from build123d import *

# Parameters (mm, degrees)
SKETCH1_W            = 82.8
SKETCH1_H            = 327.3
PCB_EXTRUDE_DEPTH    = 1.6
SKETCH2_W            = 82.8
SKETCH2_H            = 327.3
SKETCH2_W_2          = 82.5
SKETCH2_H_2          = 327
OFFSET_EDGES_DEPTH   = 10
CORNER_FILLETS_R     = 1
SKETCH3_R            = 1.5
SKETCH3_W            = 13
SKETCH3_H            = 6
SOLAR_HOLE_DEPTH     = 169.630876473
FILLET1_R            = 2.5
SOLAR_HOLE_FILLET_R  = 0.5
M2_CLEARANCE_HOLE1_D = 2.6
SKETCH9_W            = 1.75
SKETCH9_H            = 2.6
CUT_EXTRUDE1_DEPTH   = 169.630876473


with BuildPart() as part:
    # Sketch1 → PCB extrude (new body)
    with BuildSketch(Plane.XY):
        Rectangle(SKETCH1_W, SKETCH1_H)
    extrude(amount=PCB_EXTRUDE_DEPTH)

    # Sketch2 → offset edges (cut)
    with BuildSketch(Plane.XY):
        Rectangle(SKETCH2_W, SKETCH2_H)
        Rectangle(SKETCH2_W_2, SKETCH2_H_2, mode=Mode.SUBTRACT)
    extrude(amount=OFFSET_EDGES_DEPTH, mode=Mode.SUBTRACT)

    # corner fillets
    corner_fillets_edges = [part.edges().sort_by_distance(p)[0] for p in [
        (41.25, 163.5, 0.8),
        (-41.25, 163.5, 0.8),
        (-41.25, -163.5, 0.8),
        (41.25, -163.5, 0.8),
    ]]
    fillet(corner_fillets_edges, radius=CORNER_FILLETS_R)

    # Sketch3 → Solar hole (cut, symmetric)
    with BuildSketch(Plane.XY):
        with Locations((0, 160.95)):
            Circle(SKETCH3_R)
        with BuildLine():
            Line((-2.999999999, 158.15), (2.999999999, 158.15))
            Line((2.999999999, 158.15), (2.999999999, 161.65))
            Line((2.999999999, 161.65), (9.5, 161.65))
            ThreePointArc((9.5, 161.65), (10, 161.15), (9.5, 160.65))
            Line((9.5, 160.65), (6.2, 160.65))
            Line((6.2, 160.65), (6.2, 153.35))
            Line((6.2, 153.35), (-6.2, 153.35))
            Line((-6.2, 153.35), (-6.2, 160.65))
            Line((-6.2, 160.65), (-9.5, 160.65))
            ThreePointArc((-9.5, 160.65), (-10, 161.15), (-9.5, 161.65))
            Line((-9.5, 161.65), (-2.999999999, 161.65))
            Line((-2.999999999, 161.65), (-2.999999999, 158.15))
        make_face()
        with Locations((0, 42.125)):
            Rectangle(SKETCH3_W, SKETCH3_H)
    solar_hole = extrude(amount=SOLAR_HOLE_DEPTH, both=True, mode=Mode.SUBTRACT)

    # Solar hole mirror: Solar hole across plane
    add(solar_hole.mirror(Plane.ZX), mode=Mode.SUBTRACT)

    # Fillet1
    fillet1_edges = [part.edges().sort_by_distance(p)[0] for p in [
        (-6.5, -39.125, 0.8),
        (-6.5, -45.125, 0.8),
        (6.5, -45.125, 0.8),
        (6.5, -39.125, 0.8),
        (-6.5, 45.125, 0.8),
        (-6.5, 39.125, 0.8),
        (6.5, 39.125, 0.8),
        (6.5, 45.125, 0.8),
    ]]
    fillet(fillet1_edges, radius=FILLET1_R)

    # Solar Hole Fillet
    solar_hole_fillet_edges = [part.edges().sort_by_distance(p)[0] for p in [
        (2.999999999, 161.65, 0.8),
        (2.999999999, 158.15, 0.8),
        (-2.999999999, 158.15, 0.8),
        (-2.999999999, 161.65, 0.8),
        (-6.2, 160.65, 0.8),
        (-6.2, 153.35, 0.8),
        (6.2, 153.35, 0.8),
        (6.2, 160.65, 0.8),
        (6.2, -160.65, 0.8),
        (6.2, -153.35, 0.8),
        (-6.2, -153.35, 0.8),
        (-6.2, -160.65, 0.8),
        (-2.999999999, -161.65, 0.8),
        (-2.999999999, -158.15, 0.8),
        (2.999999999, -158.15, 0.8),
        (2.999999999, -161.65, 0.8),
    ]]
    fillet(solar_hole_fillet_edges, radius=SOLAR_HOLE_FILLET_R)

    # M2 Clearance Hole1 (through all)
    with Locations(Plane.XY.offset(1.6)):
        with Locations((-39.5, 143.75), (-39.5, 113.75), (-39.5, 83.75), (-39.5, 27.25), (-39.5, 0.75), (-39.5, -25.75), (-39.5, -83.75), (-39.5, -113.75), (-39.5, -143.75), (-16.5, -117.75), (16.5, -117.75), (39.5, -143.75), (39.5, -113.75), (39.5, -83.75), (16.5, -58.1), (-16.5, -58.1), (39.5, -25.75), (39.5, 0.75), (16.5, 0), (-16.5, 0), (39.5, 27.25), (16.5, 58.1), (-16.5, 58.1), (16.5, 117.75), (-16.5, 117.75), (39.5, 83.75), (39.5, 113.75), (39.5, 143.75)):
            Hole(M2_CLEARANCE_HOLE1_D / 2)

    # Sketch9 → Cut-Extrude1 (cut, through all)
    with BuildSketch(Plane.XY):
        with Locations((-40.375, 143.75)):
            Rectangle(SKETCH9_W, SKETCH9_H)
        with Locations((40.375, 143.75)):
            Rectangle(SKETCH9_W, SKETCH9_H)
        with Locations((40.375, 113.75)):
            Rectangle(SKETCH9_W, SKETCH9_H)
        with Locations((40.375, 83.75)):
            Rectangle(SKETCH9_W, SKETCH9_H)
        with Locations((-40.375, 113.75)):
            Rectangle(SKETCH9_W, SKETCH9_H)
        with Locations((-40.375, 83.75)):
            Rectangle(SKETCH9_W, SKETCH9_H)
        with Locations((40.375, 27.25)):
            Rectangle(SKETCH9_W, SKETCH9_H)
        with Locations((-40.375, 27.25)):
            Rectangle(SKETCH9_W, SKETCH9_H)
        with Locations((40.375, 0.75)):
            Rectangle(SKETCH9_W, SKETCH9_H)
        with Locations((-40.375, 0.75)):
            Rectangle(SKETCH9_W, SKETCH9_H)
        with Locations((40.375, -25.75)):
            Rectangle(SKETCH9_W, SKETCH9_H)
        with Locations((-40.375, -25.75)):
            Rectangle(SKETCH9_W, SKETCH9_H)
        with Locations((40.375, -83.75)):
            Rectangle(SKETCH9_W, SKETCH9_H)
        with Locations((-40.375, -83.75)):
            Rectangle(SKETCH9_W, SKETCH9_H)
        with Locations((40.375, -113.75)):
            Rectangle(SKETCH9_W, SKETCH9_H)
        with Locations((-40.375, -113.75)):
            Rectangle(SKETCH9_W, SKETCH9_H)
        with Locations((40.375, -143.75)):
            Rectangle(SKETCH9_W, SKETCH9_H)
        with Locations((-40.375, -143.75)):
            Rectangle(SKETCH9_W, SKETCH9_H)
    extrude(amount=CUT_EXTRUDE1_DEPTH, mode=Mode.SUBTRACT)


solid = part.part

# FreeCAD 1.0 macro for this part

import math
import FreeCAD as App
import Part
import Sketcher
from FreeCAD import Vector
Q = App.Units.Quantity


def edges_at(feature, points):
    """Names of the edges that pass closest to the given points."""
    edges = feature.Shape.Edges
    near = lambda p: min(range(len(edges)), key=lambda i: edges[i].distToShape(Part.Vertex(*p))[0])
    return sorted({f"Edge{near(p) + 1}" for p in points})

doc = App.newDocument("Part")
body = doc.addObject("PartDesign::Body", "Body")

# Sketch on XY plane
sketch1 = doc.addObject("Sketcher::SketchObject", "Sketch")
body.addObject(sketch1)
sketch1.AttachmentSupport = (doc.XY_Plane, [""])
sketch1.MapMode = "FlatFace"
sketch1.addGeometry([
    Part.LineSegment(Vector(-41, 164, 0), Vector(-41, -164, 0)),
    Part.LineSegment(Vector(-41, -164, 0), Vector(41, -164, 0)),
    Part.LineSegment(Vector(41, -164, 0), Vector(41, 164, 0)),
    Part.LineSegment(Vector(41, 164, 0), Vector(-41, 164, 0)),
], False)
sketch1.addConstraint([
    Sketcher.Constraint("Coincident", 0, 2, 1, 1),
    Sketcher.Constraint("Coincident", 1, 2, 2, 1),
    Sketcher.Constraint("Coincident", 2, 2, 3, 1),
    Sketcher.Constraint("Coincident", 3, 2, 0, 1),
    Sketcher.Constraint("Vertical", 0),
    Sketcher.Constraint("Horizontal", 1),
    Sketcher.Constraint("Vertical", 2),
    Sketcher.Constraint("Horizontal", 3),
    Sketcher.Constraint("Symmetric", 0, 2, 2, 2, -1, 1),
    Sketcher.Constraint("DistanceX", 1, 1, 1, 2, Q("82.8 mm")),
    Sketcher.Constraint("DistanceY", 0, 2, 0, 1, Q("327.3 mm")),
])
pad1 = doc.addObject("PartDesign::Pad", "Pad")
body.addObject(pad1)
pad1.Profile = sketch1
pad1.Length = 1.6

# Sketch on XY plane
sketch2 = doc.addObject("Sketcher::SketchObject", "Sketch001")
body.addObject(sketch2)
sketch2.AttachmentSupport = (doc.XY_Plane, [""])
sketch2.MapMode = "FlatFace"
sketch2.addGeometry([
    Part.LineSegment(Vector(-41, 164, 0), Vector(-41, -164, 0)),  # 0
    Part.LineSegment(Vector(-41, -164, 0), Vector(41, -164, 0)),  # 1
    Part.LineSegment(Vector(41, -164, 0), Vector(41, 164, 0)),  # 2
    Part.LineSegment(Vector(41, 164, 0), Vector(-41, 164, 0)),  # 3
    Part.LineSegment(Vector(41, -164, 0), Vector(-41, -164, 0)),  # 4
    Part.LineSegment(Vector(-41, -164, 0), Vector(-41, 164, 0)),  # 5
    Part.LineSegment(Vector(-41, 164, 0), Vector(41, 164, 0)),  # 6
    Part.LineSegment(Vector(41, 164, 0), Vector(41, -164, 0)),  # 7
], False)
sketch2.addConstraint([
    Sketcher.Constraint("Coincident", 0, 2, 1, 1),
    Sketcher.Constraint("Coincident", 1, 2, 2, 1),
    Sketcher.Constraint("Coincident", 2, 2, 3, 1),
    Sketcher.Constraint("Coincident", 3, 2, 0, 1),
    Sketcher.Constraint("Coincident", 4, 2, 5, 1),
    Sketcher.Constraint("Coincident", 5, 2, 6, 1),
    Sketcher.Constraint("Coincident", 6, 2, 7, 1),
    Sketcher.Constraint("Coincident", 7, 2, 4, 1),
    Sketcher.Constraint("Vertical", 0),
    Sketcher.Constraint("Horizontal", 1),
    Sketcher.Constraint("Vertical", 2),
    Sketcher.Constraint("Horizontal", 3),
    Sketcher.Constraint("Horizontal", 4),
    Sketcher.Constraint("Vertical", 5),
    Sketcher.Constraint("Horizontal", 6),
    Sketcher.Constraint("Vertical", 7),
    Sketcher.Constraint("Symmetric", 0, 2, 2, 2, -1, 1),
    Sketcher.Constraint("Symmetric", 4, 2, 6, 2, -1, 1),
    Sketcher.Constraint("DistanceY", 5, 1, 5, 2, Q("327 mm")),
    Sketcher.Constraint("DistanceX", 1, 1, 1, 2, Q("82.8 mm")),
    Sketcher.Constraint("DistanceX", 4, 2, 4, 1, Q("82.5 mm")),
    Sketcher.Constraint("DistanceY", 0, 2, 0, 1, Q("327.3 mm")),
])
pocket1 = doc.addObject("PartDesign::Pocket", "Pocket")
body.addObject(pocket1)
pocket1.Profile = sketch2
pocket1.Length = 10
pocket1.Reversed = True
doc.recompute()

fillet = doc.addObject("PartDesign::Fillet", "Fillet")
body.addObject(fillet)
fillet.Base = (pocket1, edges_at(pocket1, [
    (41.25, 163.5, 0.8),
    (-41.25, 163.5, 0.8),
    (-41.25, -163.5, 0.8),
    (41.25, -163.5, 0.8),
]))
fillet.Radius = 1

# Sketch on XY plane
sketch3 = doc.addObject("Sketcher::SketchObject", "Sketch002")
body.addObject(sketch3)
sketch3.AttachmentSupport = (doc.XY_Plane, [""])
sketch3.MapMode = "FlatFace"
sketch3.addGeometry([
    Part.Circle(Vector(0, 160.9, 0), Vector(0, 0, 1), 1.5),  # 0
    Part.LineSegment(Vector(3, 158.2, 0), Vector(-3, 158.2, 0)),  # 1
    Part.LineSegment(Vector(-3, 158.2, 0), Vector(-3, 161.7, 0)),  # 2
    Part.LineSegment(Vector(-3, 161.7, 0), Vector(-9.5, 161.7, 0)),  # 3
    Part.ArcOfCircle(Part.Circle(Vector(-9.5, 161.2, 0), Vector(0, 0, 1), 0.5), math.radians(90), math.radians(270)),  # 4
    Part.LineSegment(Vector(-9.5, 160.7, 0), Vector(-6.2, 160.7, 0)),  # 5
    Part.LineSegment(Vector(-6.2, 160.7, 0), Vector(-6.2, 153.3, 0)),  # 6
    Part.LineSegment(Vector(-6.2, 153.3, 0), Vector(6.2, 153.3, 0)),  # 7
    Part.LineSegment(Vector(6.2, 153.3, 0), Vector(6.2, 160.7, 0)),  # 8
    Part.LineSegment(Vector(6.2, 160.7, 0), Vector(9.5, 160.7, 0)),  # 9
    Part.ArcOfCircle(Part.Circle(Vector(9.5, 161.2, 0), Vector(0, 0, 1), 0.5), math.radians(-90), math.radians(90)),  # 10
    Part.LineSegment(Vector(9.5, 161.7, 0), Vector(3, 161.7, 0)),  # 11
    Part.LineSegment(Vector(3, 161.7, 0), Vector(3, 158.2, 0)),  # 12
    Part.LineSegment(Vector(-6.5, 45.1, 0), Vector(-6.5, 39.1, 0)),  # 13
    Part.LineSegment(Vector(-6.5, 39.1, 0), Vector(6.5, 39.1, 0)),  # 14
    Part.LineSegment(Vector(6.5, 39.1, 0), Vector(6.5, 45.1, 0)),  # 15
    Part.LineSegment(Vector(6.5, 45.1, 0), Vector(-6.5, 45.1, 0)),  # 16
], False)
sketch3.addConstraint([
    Sketcher.Constraint("Coincident", 1, 2, 2, 1),
    Sketcher.Constraint("Coincident", 2, 2, 3, 1),
    Sketcher.Constraint("Tangent", 3, 2, 4, 1),
    Sketcher.Constraint("Tangent", 4, 2, 5, 1),
    Sketcher.Constraint("Coincident", 5, 2, 6, 1),
    Sketcher.Constraint("Coincident", 6, 2, 7, 1),
    Sketcher.Constraint("Coincident", 7, 2, 8, 1),
    Sketcher.Constraint("Coincident", 8, 2, 9, 1),
    Sketcher.Constraint("Tangent", 9, 2, 10, 1),
    Sketcher.Constraint("Tangent", 10, 2, 11, 1),
    Sketcher.Constraint("Coincident", 11, 2, 12, 1),
    Sketcher.Constraint("Coincident", 12, 2, 1, 1),
    Sketcher.Constraint("Coincident", 13, 2, 14, 1),
    Sketcher.Constraint("Coincident", 14, 2, 15, 1),
    Sketcher.Constraint("Coincident", 15, 2, 16, 1),
    Sketcher.Constraint("Coincident", 16, 2, 13, 1),
    Sketcher.Constraint("Horizontal", 1),
    Sketcher.Constraint("Vertical", 2),
    Sketcher.Constraint("Horizontal", 3),
    Sketcher.Constraint("Horizontal", 5),
    Sketcher.Constraint("Vertical", 6),
    Sketcher.Constraint("Horizontal", 7),
    Sketcher.Constraint("Vertical", 8),
    Sketcher.Constraint("Horizontal", 9),
    Sketcher.Constraint("Horizontal", 11),
    Sketcher.Constraint("Vertical", 12),
    Sketcher.Constraint("Vertical", 13),
    Sketcher.Constraint("Horizontal", 14),
    Sketcher.Constraint("Vertical", 15),
    Sketcher.Constraint("Horizontal", 16),
    Sketcher.Constraint("Equal", 4, 10),
    Sketcher.Constraint("Symmetric", 4, 3, 10, 3, -2),
    Sketcher.Constraint("PointOnObject", 0, 3, -2),
    Sketcher.Constraint("Equal", 5, 9),
    Sketcher.Constraint("Equal", 3, 11),
    Sketcher.Constraint("Equal", 1, 13),
    Sketcher.Constraint("Diameter", 0, Q("3 mm")),
    Sketcher.Constraint("Radius", 4, Q("0.5 mm")),
    Sketcher.Constraint("DistanceX", 1, 2, 1, 1, Q("6 mm")),
    Sketcher.Constraint("DistanceX", 14, 1, 14, 2, Q("13 mm")),
    Sketcher.Constraint("DistanceX", 3, 2, 3, 1, Q("6.5 mm")),
    Sketcher.Constraint("DistanceX", 5, 1, 5, 2, Q("3.3 mm")),
    Sketcher.Constraint("DistanceY", 2, 1, 2, 2, Q("3.5 mm")),
    Sketcher.Constraint("DistanceY", 6, 2, 6, 1, Q("7.3 mm")),
    Sketcher.Constraint("DistanceX", 13, 2, -1, 1, Q("6.5 mm")),
    Sketcher.Constraint("DistanceY", 0, 3, 4, 3, Q("0.2 mm")),
    Sketcher.Constraint("DistanceY", -1, 1, 0, 3, Q("160.95 mm")),
    Sketcher.Constraint("DistanceY", -1, 1, 13, 2, Q("39.125 mm")),
])
pocket2 = doc.addObject("PartDesign::Pocket", "Pocket001")
body.addObject(pocket2)
pocket2.Profile = sketch3
pocket2.Length = 339.261753
pocket2.Midplane = True
doc.recompute()

mirrored = doc.addObject("PartDesign::Mirrored", "Mirrored")
body.addObject(mirrored)
mirrored.Originals = [pocket2]
mirrored.MirrorPlane = (doc.XZ_Plane, [""])
body.Tip = mirrored
doc.recompute()

fillet2 = doc.addObject("PartDesign::Fillet", "Fillet001")
body.addObject(fillet2)
fillet2.Base = (mirrored, edges_at(mirrored, [
    (-6.5, -39.125, 0.8),
    (-6.5, -45.125, 0.8),
    (6.5, -45.125, 0.8),
    (6.5, -39.125, 0.8),
    (-6.5, 45.125, 0.8),
    (-6.5, 39.125, 0.8),
    (6.5, 39.125, 0.8),
    (6.5, 45.125, 0.8),
]))
fillet2.Radius = 2.5
doc.recompute()

fillet3 = doc.addObject("PartDesign::Fillet", "Fillet002")
body.addObject(fillet3)
fillet3.Base = (fillet2, edges_at(fillet2, [
    (3, 161.65, 0.8),
    (3, 158.15, 0.8),
    (-3, 158.15, 0.8),
    (-3, 161.65, 0.8),
    (-6.2, 160.65, 0.8),
    (-6.2, 153.35, 0.8),
    (6.2, 153.35, 0.8),
    (6.2, 160.65, 0.8),
    (6.2, -160.65, 0.8),
    (6.2, -153.35, 0.8),
    (-6.2, -153.35, 0.8),
    (-6.2, -160.65, 0.8),
    (-3, -161.65, 0.8),
    (-3, -158.15, 0.8),
    (3, -158.15, 0.8),
    (3, -161.65, 0.8),
]))
fillet3.Radius = 0.5

# Sketch on XY plane
sketch4 = doc.addObject("Sketcher::SketchObject", "Sketch003")
body.addObject(sketch4)
sketch4.AttachmentSupport = (doc.XY_Plane, [""])
sketch4.MapMode = "FlatFace"
sketch4.AttachmentOffset = App.Placement(Vector(0, 0, 1.6), App.Rotation())
sketch4.addGeometry([
    Part.Circle(Vector(-39.5, 143.8, 0), Vector(0, 0, 1), 1.3),  # 0
    Part.Circle(Vector(-39.5, 113.8, 0), Vector(0, 0, 1), 1.3),  # 1
    Part.Circle(Vector(-39.5, 83.8, 0), Vector(0, 0, 1), 1.3),  # 2
    Part.Circle(Vector(-39.5, 27.2, 0), Vector(0, 0, 1), 1.3),  # 3
    Part.Circle(Vector(-39.5, 0.8, 0), Vector(0, 0, 1), 1.3),  # 4
    Part.Circle(Vector(-39.5, -25.8, 0), Vector(0, 0, 1), 1.3),  # 5
    Part.Circle(Vector(-39.5, -83.8, 0), Vector(0, 0, 1), 1.3),  # 6
    Part.Circle(Vector(-39.5, -113.8, 0), Vector(0, 0, 1), 1.3),  # 7
    Part.Circle(Vector(-39.5, -143.8, 0), Vector(0, 0, 1), 1.3),  # 8
    Part.Circle(Vector(-16.5, -117.8, 0), Vector(0, 0, 1), 1.3),  # 9
    Part.Circle(Vector(16.5, -117.8, 0), Vector(0, 0, 1), 1.3),  # 10
    Part.Circle(Vector(39.5, -143.8, 0), Vector(0, 0, 1), 1.3),  # 11
    Part.Circle(Vector(39.5, -113.8, 0), Vector(0, 0, 1), 1.3),  # 12
    Part.Circle(Vector(39.5, -83.8, 0), Vector(0, 0, 1), 1.3),  # 13
    Part.Circle(Vector(16.5, -58.1, 0), Vector(0, 0, 1), 1.3),  # 14
    Part.Circle(Vector(-16.5, -58.1, 0), Vector(0, 0, 1), 1.3),  # 15
    Part.Circle(Vector(39.5, -25.8, 0), Vector(0, 0, 1), 1.3),  # 16
    Part.Circle(Vector(39.5, 0.8, 0), Vector(0, 0, 1), 1.3),  # 17
    Part.Circle(Vector(16.5, 0, 0), Vector(0, 0, 1), 1.3),  # 18
    Part.Circle(Vector(-16.5, 0, 0), Vector(0, 0, 1), 1.3),  # 19
    Part.Circle(Vector(39.5, 27.2, 0), Vector(0, 0, 1), 1.3),  # 20
    Part.Circle(Vector(16.5, 58.1, 0), Vector(0, 0, 1), 1.3),  # 21
    Part.Circle(Vector(-16.5, 58.1, 0), Vector(0, 0, 1), 1.3),  # 22
    Part.Circle(Vector(16.5, 117.8, 0), Vector(0, 0, 1), 1.3),  # 23
    Part.Circle(Vector(-16.5, 117.8, 0), Vector(0, 0, 1), 1.3),  # 24
    Part.Circle(Vector(39.5, 83.8, 0), Vector(0, 0, 1), 1.3),  # 25
    Part.Circle(Vector(39.5, 113.8, 0), Vector(0, 0, 1), 1.3),  # 26
    Part.Circle(Vector(39.5, 143.8, 0), Vector(0, 0, 1), 1.3),  # 27
], False)
sketch4.addConstraint([
    Sketcher.Constraint("Equal", 0, 1),
    Sketcher.Constraint("Equal", 1, 2),
    Sketcher.Constraint("Equal", 2, 3),
    Sketcher.Constraint("Equal", 3, 4),
    Sketcher.Constraint("Equal", 4, 5),
    Sketcher.Constraint("Equal", 5, 6),
    Sketcher.Constraint("Equal", 6, 7),
    Sketcher.Constraint("Equal", 7, 8),
    Sketcher.Constraint("Equal", 8, 9),
    Sketcher.Constraint("Equal", 9, 10),
    Sketcher.Constraint("Equal", 10, 11),
    Sketcher.Constraint("Equal", 11, 12),
    Sketcher.Constraint("Equal", 12, 13),
    Sketcher.Constraint("Equal", 13, 14),
    Sketcher.Constraint("Equal", 14, 15),
    Sketcher.Constraint("Equal", 15, 16),
    Sketcher.Constraint("Equal", 16, 17),
    Sketcher.Constraint("Equal", 17, 18),
    Sketcher.Constraint("Equal", 18, 19),
    Sketcher.Constraint("Equal", 19, 20),
    Sketcher.Constraint("Equal", 20, 21),
    Sketcher.Constraint("Equal", 21, 22),
    Sketcher.Constraint("Equal", 22, 23),
    Sketcher.Constraint("Equal", 23, 24),
    Sketcher.Constraint("Equal", 24, 25),
    Sketcher.Constraint("Equal", 25, 26),
    Sketcher.Constraint("Equal", 26, 27),
    Sketcher.Constraint("Symmetric", 0, 3, 11, 3, -1, 1),
    Sketcher.Constraint("Symmetric", 1, 3, 12, 3, -1, 1),
    Sketcher.Constraint("Symmetric", 2, 3, 13, 3, -1, 1),
    Sketcher.Constraint("Symmetric", 18, 3, 19, 3, -1, 1),
    Sketcher.Constraint("Symmetric", 15, 3, 21, 3, -1, 1),
    Sketcher.Constraint("Symmetric", 14, 3, 22, 3, -1, 1),
    Sketcher.Constraint("Symmetric", 9, 3, 23, 3, -1, 1),
    Sketcher.Constraint("Symmetric", 10, 3, 24, 3, -1, 1),
    Sketcher.Constraint("Symmetric", 6, 3, 25, 3, -1, 1),
    Sketcher.Constraint("Symmetric", 7, 3, 26, 3, -1, 1),
    Sketcher.Constraint("Symmetric", 8, 3, 27, 3, -1, 1),
    Sketcher.Constraint("Symmetric", 9, 3, 10, 3, -2),
    Sketcher.Constraint("Symmetric", 8, 3, 11, 3, -2),
    Sketcher.Constraint("Symmetric", 7, 3, 12, 3, -2),
    Sketcher.Constraint("Symmetric", 6, 3, 13, 3, -2),
    Sketcher.Constraint("Symmetric", 14, 3, 15, 3, -2),
    Sketcher.Constraint("Symmetric", 5, 3, 16, 3, -2),
    Sketcher.Constraint("Symmetric", 4, 3, 17, 3, -2),
    Sketcher.Constraint("Symmetric", 3, 3, 20, 3, -2),
    Sketcher.Constraint("PointOnObject", 18, 3, -1),
    Sketcher.Constraint("Vertical", 0, 3, 1, 3),
    Sketcher.Constraint("Vertical", 1, 3, 2, 3),
    Sketcher.Constraint("Vertical", 2, 3, 3, 3),
    Sketcher.Constraint("Vertical", 3, 3, 4, 3),
    Sketcher.Constraint("Vertical", 4, 3, 5, 3),
    Sketcher.Constraint("Vertical", 10, 3, 14, 3),
    Sketcher.Constraint("Vertical", 14, 3, 18, 3),
    Sketcher.Constraint("Diameter", 0, Q("2.6 mm")),
    Sketcher.Constraint("DistanceY", 1, 3, 0, 3, Q("30 mm")),
    Sketcher.Constraint("DistanceY", 2, 3, 1, 3, Q("30 mm")),
    Sketcher.Constraint("DistanceY", 4, 3, 2, 3, Q("83 mm")),
    Sketcher.Constraint("DistanceY", 5, 3, 3, 3, Q("53 mm")),
    Sketcher.Constraint("DistanceY", 6, 3, 5, 3, Q("58 mm")),
    Sketcher.Constraint("DistanceX", 7, 3, 9, 3, Q("23 mm")),
    Sketcher.Constraint("DistanceY", 9, 3, 7, 3, Q("4 mm")),
    Sketcher.Constraint("DistanceX", 9, 3, 10, 3, Q("33 mm")),
    Sketcher.Constraint("DistanceY", 14, 3, -1, 1, Q("58.1 mm")),
    Sketcher.Constraint("DistanceY", 3, 3, 2, 3, Q("56.5 mm")),
])
doc.recompute()
hole = doc.addObject("PartDesign::Hole", "Hole")
body.addObject(hole)
hole.Profile = sketch4
hole.ThreadType = "None"
hole.Diameter = 2.6
hole.DepthType = "ThroughAll"

# Sketch on XY plane
sketch5 = doc.addObject("Sketcher::SketchObject", "Sketch004")
body.addObject(sketch5)
sketch5.AttachmentSupport = (doc.XY_Plane, [""])
sketch5.MapMode = "FlatFace"
sketch5.addGeometry([
    Part.LineSegment(Vector(-41.2, 145.1, 0), Vector(-41.2, 142.4, 0)),  # 0
    Part.LineSegment(Vector(-41.2, 142.4, 0), Vector(-39.5, 142.4, 0)),  # 1
    Part.LineSegment(Vector(-39.5, 142.4, 0), Vector(-39.5, 145.1, 0)),  # 2
    Part.LineSegment(Vector(-39.5, 145.1, 0), Vector(-41.2, 145.1, 0)),  # 3
    Part.LineSegment(Vector(39.5, 145.1, 0), Vector(39.5, 142.4, 0)),  # 4
    Part.LineSegment(Vector(39.5, 142.4, 0), Vector(41.2, 142.4, 0)),  # 5
    Part.LineSegment(Vector(41.2, 142.4, 0), Vector(41.2, 145.1, 0)),  # 6
    Part.LineSegment(Vector(41.2, 145.1, 0), Vector(39.5, 145.1, 0)),  # 7
    Part.LineSegment(Vector(39.5, 115, 0), Vector(39.5, 112.5, 0)),  # 8
    Part.LineSegment(Vector(39.5, 112.5, 0), Vector(41.2, 112.5, 0)),  # 9
    Part.LineSegment(Vector(41.2, 112.5, 0), Vector(41.2, 115, 0)),  # 10
    Part.LineSegment(Vector(41.2, 115, 0), Vector(39.5, 115, 0)),  # 11
    Part.LineSegment(Vector(39.5, 85, 0), Vector(39.5, 82.5, 0)),  # 12
    Part.LineSegment(Vector(39.5, 82.5, 0), Vector(41.2, 82.5, 0)),  # 13
    Part.LineSegment(Vector(41.2, 82.5, 0), Vector(41.2, 85, 0)),  # 14
    Part.LineSegment(Vector(41.2, 85, 0), Vector(39.5, 85, 0)),  # 15
    Part.LineSegment(Vector(-41.2, 115, 0), Vector(-41.2, 112.5, 0)),  # 16
    Part.LineSegment(Vector(-41.2, 112.5, 0), Vector(-39.5, 112.5, 0)),  # 17
    Part.LineSegment(Vector(-39.5, 112.5, 0), Vector(-39.5, 115, 0)),  # 18
    Part.LineSegment(Vector(-39.5, 115, 0), Vector(-41.2, 115, 0)),  # 19
    Part.LineSegment(Vector(-41.2, 85, 0), Vector(-41.2, 82.5, 0)),  # 20
    Part.LineSegment(Vector(-41.2, 82.5, 0), Vector(-39.5, 82.5, 0)),  # 21
    Part.LineSegment(Vector(-39.5, 82.5, 0), Vector(-39.5, 85, 0)),  # 22
    Part.LineSegment(Vector(-39.5, 85, 0), Vector(-41.2, 85, 0)),  # 23
    Part.LineSegment(Vector(39.5, 28.6, 0), Vector(39.5, 25.9, 0)),  # 24
    Part.LineSegment(Vector(39.5, 25.9, 0), Vector(41.2, 25.9, 0)),  # 25
    Part.LineSegment(Vector(41.2, 25.9, 0), Vector(41.2, 28.6, 0)),  # 26
    Part.LineSegment(Vector(41.2, 28.6, 0), Vector(39.5, 28.6, 0)),  # 27
    Part.LineSegment(Vector(-41.2, 28.6, 0), Vector(-41.2, 25.9, 0)),  # 28
    Part.LineSegment(Vector(-41.2, 25.9, 0), Vector(-39.5, 25.9, 0)),  # 29
    Part.LineSegment(Vector(-39.5, 25.9, 0), Vector(-39.5, 28.6, 0)),  # 30
    Part.LineSegment(Vector(-39.5, 28.6, 0), Vector(-41.2, 28.6, 0)),  # 31
    Part.LineSegment(Vector(39.5, 2, 0), Vector(39.5, -0.6, 0)),  # 32
    Part.LineSegment(Vector(39.5, -0.6, 0), Vector(41.2, -0.6, 0)),  # 33
    Part.LineSegment(Vector(41.2, -0.6, 0), Vector(41.2, 2, 0)),  # 34
    Part.LineSegment(Vector(41.2, 2, 0), Vector(39.5, 2, 0)),  # 35
    Part.LineSegment(Vector(-41.2, 2, 0), Vector(-41.2, -0.6, 0)),  # 36
    Part.LineSegment(Vector(-41.2, -0.6, 0), Vector(-39.5, -0.6, 0)),  # 37
    Part.LineSegment(Vector(-39.5, -0.6, 0), Vector(-39.5, 2, 0)),  # 38
    Part.LineSegment(Vector(-39.5, 2, 0), Vector(-41.2, 2, 0)),  # 39
    Part.LineSegment(Vector(39.5, -24.4, 0), Vector(39.5, -27.1, 0)),  # 40
    Part.LineSegment(Vector(39.5, -27.1, 0), Vector(41.2, -27.1, 0)),  # 41
    Part.LineSegment(Vector(41.2, -27.1, 0), Vector(41.2, -24.4, 0)),  # 42
    Part.LineSegment(Vector(41.2, -24.4, 0), Vector(39.5, -24.4, 0)),  # 43
    Part.LineSegment(Vector(-41.2, -24.4, 0), Vector(-41.2, -27.1, 0)),  # 44
    Part.LineSegment(Vector(-41.2, -27.1, 0), Vector(-39.5, -27.1, 0)),  # 45
    Part.LineSegment(Vector(-39.5, -27.1, 0), Vector(-39.5, -24.4, 0)),  # 46
    Part.LineSegment(Vector(-39.5, -24.4, 0), Vector(-41.2, -24.4, 0)),  # 47
    Part.LineSegment(Vector(39.5, -82.5, 0), Vector(39.5, -85, 0)),  # 48
    Part.LineSegment(Vector(39.5, -85, 0), Vector(41.2, -85, 0)),  # 49
    Part.LineSegment(Vector(41.2, -85, 0), Vector(41.2, -82.5, 0)),  # 50
    Part.LineSegment(Vector(41.2, -82.5, 0), Vector(39.5, -82.5, 0)),  # 51
    Part.LineSegment(Vector(-41.2, -82.5, 0), Vector(-41.2, -85, 0)),  # 52
    Part.LineSegment(Vector(-41.2, -85, 0), Vector(-39.5, -85, 0)),  # 53
    Part.LineSegment(Vector(-39.5, -85, 0), Vector(-39.5, -82.5, 0)),  # 54
    Part.LineSegment(Vector(-39.5, -82.5, 0), Vector(-41.2, -82.5, 0)),  # 55
    Part.LineSegment(Vector(39.5, -112.5, 0), Vector(39.5, -115, 0)),  # 56
    Part.LineSegment(Vector(39.5, -115, 0), Vector(41.2, -115, 0)),  # 57
    Part.LineSegment(Vector(41.2, -115, 0), Vector(41.2, -112.5, 0)),  # 58
    Part.LineSegment(Vector(41.2, -112.5, 0), Vector(39.5, -112.5, 0)),  # 59
    Part.LineSegment(Vector(-41.2, -112.5, 0), Vector(-41.2, -115, 0)),  # 60
    Part.LineSegment(Vector(-41.2, -115, 0), Vector(-39.5, -115, 0)),  # 61
    Part.LineSegment(Vector(-39.5, -115, 0), Vector(-39.5, -112.5, 0)),  # 62
    Part.LineSegment(Vector(-39.5, -112.5, 0), Vector(-41.2, -112.5, 0)),  # 63
    Part.LineSegment(Vector(39.5, -142.4, 0), Vector(39.5, -145.1, 0)),  # 64
    Part.LineSegment(Vector(39.5, -145.1, 0), Vector(41.2, -145.1, 0)),  # 65
    Part.LineSegment(Vector(41.2, -145.1, 0), Vector(41.2, -142.4, 0)),  # 66
    Part.LineSegment(Vector(41.2, -142.4, 0), Vector(39.5, -142.4, 0)),  # 67
    Part.LineSegment(Vector(-41.2, -142.4, 0), Vector(-41.2, -145.1, 0)),  # 68
    Part.LineSegment(Vector(-41.2, -145.1, 0), Vector(-39.5, -145.1, 0)),  # 69
    Part.LineSegment(Vector(-39.5, -145.1, 0), Vector(-39.5, -142.4, 0)),  # 70
    Part.LineSegment(Vector(-39.5, -142.4, 0), Vector(-41.2, -142.4, 0)),  # 71
], False)
sketch5.addConstraint([
    Sketcher.Constraint("Coincident", 0, 2, 1, 1),
    Sketcher.Constraint("Coincident", 1, 2, 2, 1),
    Sketcher.Constraint("Coincident", 2, 2, 3, 1),
    Sketcher.Constraint("Coincident", 3, 2, 0, 1),
    Sketcher.Constraint("Coincident", 4, 2, 5, 1),
    Sketcher.Constraint("Coincident", 5, 2, 6, 1),
    Sketcher.Constraint("Coincident", 6, 2, 7, 1),
    Sketcher.Constraint("Coincident", 7, 2, 4, 1),
    Sketcher.Constraint("Coincident", 8, 2, 9, 1),
    Sketcher.Constraint("Coincident", 9, 2, 10, 1),
    Sketcher.Constraint("Coincident", 10, 2, 11, 1),
    Sketcher.Constraint("Coincident", 11, 2, 8, 1),
    Sketcher.Constraint("Coincident", 12, 2, 13, 1),
    Sketcher.Constraint("Coincident", 13, 2, 14, 1),
    Sketcher.Constraint("Coincident", 14, 2, 15, 1),
    Sketcher.Constraint("Coincident", 15, 2, 12, 1),
    Sketcher.Constraint("Coincident", 16, 2, 17, 1),
    Sketcher.Constraint("Coincident", 17, 2, 18, 1),
    Sketcher.Constraint("Coincident", 18, 2, 19, 1),
    Sketcher.Constraint("Coincident", 19, 2, 16, 1),
    Sketcher.Constraint("Coincident", 20, 2, 21, 1),
    Sketcher.Constraint("Coincident", 21, 2, 22, 1),
    Sketcher.Constraint("Coincident", 22, 2, 23, 1),
    Sketcher.Constraint("Coincident", 23, 2, 20, 1),
    Sketcher.Constraint("Coincident", 24, 2, 25, 1),
    Sketcher.Constraint("Coincident", 25, 2, 26, 1),
    Sketcher.Constraint("Coincident", 26, 2, 27, 1),
    Sketcher.Constraint("Coincident", 27, 2, 24, 1),
    Sketcher.Constraint("Coincident", 28, 2, 29, 1),
    Sketcher.Constraint("Coincident", 29, 2, 30, 1),
    Sketcher.Constraint("Coincident", 30, 2, 31, 1),
    Sketcher.Constraint("Coincident", 31, 2, 28, 1),
    Sketcher.Constraint("Coincident", 32, 2, 33, 1),
    Sketcher.Constraint("Coincident", 33, 2, 34, 1),
    Sketcher.Constraint("Coincident", 34, 2, 35, 1),
    Sketcher.Constraint("Coincident", 35, 2, 32, 1),
    Sketcher.Constraint("Coincident", 36, 2, 37, 1),
    Sketcher.Constraint("Coincident", 37, 2, 38, 1),
    Sketcher.Constraint("Coincident", 38, 2, 39, 1),
    Sketcher.Constraint("Coincident", 39, 2, 36, 1),
    Sketcher.Constraint("Coincident", 40, 2, 41, 1),
    Sketcher.Constraint("Coincident", 41, 2, 42, 1),
    Sketcher.Constraint("Coincident", 42, 2, 43, 1),
    Sketcher.Constraint("Coincident", 43, 2, 40, 1),
    Sketcher.Constraint("Coincident", 44, 2, 45, 1),
    Sketcher.Constraint("Coincident", 45, 2, 46, 1),
    Sketcher.Constraint("Coincident", 46, 2, 47, 1),
    Sketcher.Constraint("Coincident", 47, 2, 44, 1),
    Sketcher.Constraint("Coincident", 48, 2, 49, 1),
    Sketcher.Constraint("Coincident", 49, 2, 50, 1),
    Sketcher.Constraint("Coincident", 50, 2, 51, 1),
    Sketcher.Constraint("Coincident", 51, 2, 48, 1),
    Sketcher.Constraint("Coincident", 52, 2, 53, 1),
    Sketcher.Constraint("Coincident", 53, 2, 54, 1),
    Sketcher.Constraint("Coincident", 54, 2, 55, 1),
    Sketcher.Constraint("Coincident", 55, 2, 52, 1),
    Sketcher.Constraint("Coincident", 56, 2, 57, 1),
    Sketcher.Constraint("Coincident", 57, 2, 58, 1),
    Sketcher.Constraint("Coincident", 58, 2, 59, 1),
    Sketcher.Constraint("Coincident", 59, 2, 56, 1),
    Sketcher.Constraint("Coincident", 60, 2, 61, 1),
    Sketcher.Constraint("Coincident", 61, 2, 62, 1),
    Sketcher.Constraint("Coincident", 62, 2, 63, 1),
    Sketcher.Constraint("Coincident", 63, 2, 60, 1),
    Sketcher.Constraint("Coincident", 64, 2, 65, 1),
    Sketcher.Constraint("Coincident", 65, 2, 66, 1),
    Sketcher.Constraint("Coincident", 66, 2, 67, 1),
    Sketcher.Constraint("Coincident", 67, 2, 64, 1),
    Sketcher.Constraint("Coincident", 68, 2, 69, 1),
    Sketcher.Constraint("Coincident", 69, 2, 70, 1),
    Sketcher.Constraint("Coincident", 70, 2, 71, 1),
    Sketcher.Constraint("Coincident", 71, 2, 68, 1),
    Sketcher.Constraint("Vertical", 0),
    Sketcher.Constraint("Horizontal", 1),
    Sketcher.Constraint("Vertical", 2),
    Sketcher.Constraint("Horizontal", 3),
    Sketcher.Constraint("Vertical", 4),
    Sketcher.Constraint("Horizontal", 5),
    Sketcher.Constraint("Vertical", 6),
    Sketcher.Constraint("Horizontal", 7),
    Sketcher.Constraint("Vertical", 8),
    Sketcher.Constraint("Horizontal", 9),
    Sketcher.Constraint("Vertical", 10),
    Sketcher.Constraint("Horizontal", 11),
    Sketcher.Constraint("Vertical", 12),
    Sketcher.Constraint("Horizontal", 13),
    Sketcher.Constraint("Vertical", 14),
    Sketcher.Constraint("Horizontal", 15),
    Sketcher.Constraint("Vertical", 16),
    Sketcher.Constraint("Horizontal", 17),
    Sketcher.Constraint("Vertical", 18),
    Sketcher.Constraint("Horizontal", 19),
    Sketcher.Constraint("Vertical", 20),
    Sketcher.Constraint("Horizontal", 21),
    Sketcher.Constraint("Vertical", 22),
    Sketcher.Constraint("Horizontal", 23),
    Sketcher.Constraint("Vertical", 24),
    Sketcher.Constraint("Horizontal", 25),
    Sketcher.Constraint("Vertical", 26),
    Sketcher.Constraint("Horizontal", 27),
    Sketcher.Constraint("Vertical", 28),
    Sketcher.Constraint("Horizontal", 29),
    Sketcher.Constraint("Vertical", 30),
    Sketcher.Constraint("Horizontal", 31),
    Sketcher.Constraint("Vertical", 32),
    Sketcher.Constraint("Horizontal", 33),
    Sketcher.Constraint("Vertical", 34),
    Sketcher.Constraint("Horizontal", 35),
    Sketcher.Constraint("Vertical", 36),
    Sketcher.Constraint("Horizontal", 37),
    Sketcher.Constraint("Vertical", 38),
    Sketcher.Constraint("Horizontal", 39),
    Sketcher.Constraint("Vertical", 40),
    Sketcher.Constraint("Horizontal", 41),
    Sketcher.Constraint("Vertical", 42),
    Sketcher.Constraint("Horizontal", 43),
    Sketcher.Constraint("Vertical", 44),
    Sketcher.Constraint("Horizontal", 45),
    Sketcher.Constraint("Vertical", 46),
    Sketcher.Constraint("Horizontal", 47),
    Sketcher.Constraint("Vertical", 48),
    Sketcher.Constraint("Horizontal", 49),
    Sketcher.Constraint("Vertical", 50),
    Sketcher.Constraint("Horizontal", 51),
    Sketcher.Constraint("Vertical", 52),
    Sketcher.Constraint("Horizontal", 53),
    Sketcher.Constraint("Vertical", 54),
    Sketcher.Constraint("Horizontal", 55),
    Sketcher.Constraint("Vertical", 56),
    Sketcher.Constraint("Horizontal", 57),
    Sketcher.Constraint("Vertical", 58),
    Sketcher.Constraint("Horizontal", 59),
    Sketcher.Constraint("Vertical", 60),
    Sketcher.Constraint("Horizontal", 61),
    Sketcher.Constraint("Vertical", 62),
    Sketcher.Constraint("Horizontal", 63),
    Sketcher.Constraint("Vertical", 64),
    Sketcher.Constraint("Horizontal", 65),
    Sketcher.Constraint("Vertical", 66),
    Sketcher.Constraint("Horizontal", 67),
    Sketcher.Constraint("Vertical", 68),
    Sketcher.Constraint("Horizontal", 69),
    Sketcher.Constraint("Vertical", 70),
    Sketcher.Constraint("Horizontal", 71),
    Sketcher.Constraint("Symmetric", 22, 2, 48, 2, -1, 1),
    Sketcher.Constraint("Symmetric", 20, 2, 50, 2, -1, 1),
    Sketcher.Constraint("Symmetric", 14, 2, 52, 2, -1, 1),
    Sketcher.Constraint("Symmetric", 12, 2, 54, 2, -1, 1),
    Sketcher.Constraint("Symmetric", 18, 2, 56, 2, -1, 1),
    Sketcher.Constraint("Symmetric", 16, 2, 58, 2, -1, 1),
    Sketcher.Constraint("Symmetric", 10, 2, 60, 2, -1, 1),
    Sketcher.Constraint("Symmetric", 8, 2, 62, 2, -1, 1),
    Sketcher.Constraint("Symmetric", 2, 2, 64, 2, -1, 1),
    Sketcher.Constraint("Symmetric", 0, 2, 66, 2, -1, 1),
    Sketcher.Constraint("Symmetric", 6, 2, 68, 2, -1, 1),
    Sketcher.Constraint("Symmetric", 4, 2, 70, 2, -1, 1),
    Sketcher.Constraint("Symmetric", 1, 2, 4, 2, -2),
    Sketcher.Constraint("Symmetric", 3, 2, 6, 2, -2),
    Sketcher.Constraint("Symmetric", 9, 2, 16, 2, -2),
    Sketcher.Constraint("Symmetric", 11, 2, 18, 2, -2),
    Sketcher.Constraint("Symmetric", 13, 2, 20, 2, -2),
    Sketcher.Constraint("Symmetric", 15, 2, 22, 2, -2),
    Sketcher.Constraint("Symmetric", 25, 2, 28, 2, -2),
    Sketcher.Constraint("Symmetric", 27, 2, 30, 2, -2),
    Sketcher.Constraint("Symmetric", 33, 2, 36, 2, -2),
    Sketcher.Constraint("Symmetric", 35, 2, 38, 2, -2),
    Sketcher.Constraint("Symmetric", 41, 2, 44, 2, -2),
    Sketcher.Constraint("Symmetric", 43, 2, 46, 2, -2),
    Sketcher.Constraint("Vertical", 7, 2, 8, 2),
    Sketcher.Constraint("Vertical", 6, 2, 9, 2),
    Sketcher.Constraint("Vertical", 11, 2, 12, 2),
    Sketcher.Constraint("Vertical", 10, 2, 13, 2),
    Sketcher.Constraint("Vertical", 15, 2, 24, 2),
    Sketcher.Constraint("Vertical", 14, 2, 25, 2),
    Sketcher.Constraint("Vertical", 27, 2, 32, 2),
    Sketcher.Constraint("Vertical", 26, 2, 33, 2),
    Sketcher.Constraint("Vertical", 35, 2, 40, 2),
    Sketcher.Constraint("Vertical", 34, 2, 41, 2),
    Sketcher.Constraint("Equal", 6, 8),
    Sketcher.Constraint("Equal", 10, 12),
    Sketcher.Constraint("Equal", 22, 24),
    Sketcher.Constraint("Equal", 30, 32),
    Sketcher.Constraint("Equal", 38, 40),
    Sketcher.Constraint("DistanceY", 0, 2, 0, 1, Q("2.6 mm")),
    Sketcher.Constraint("DistanceX", 1, 1, 1, 2, Q("1.75 mm")),
    Sketcher.Constraint("DistanceX", 1, 2, -1, 1, Q("39.5 mm")),
    Sketcher.Constraint("DistanceY", -1, 1, 0, 2, Q("142.45 mm")),
    Sketcher.Constraint("DistanceY", -1, 1, 8, 2, Q("112.45 mm")),
    Sketcher.Constraint("DistanceY", -1, 1, 12, 2, Q("82.45 mm")),
    Sketcher.Constraint("DistanceY", -1, 1, 24, 2, Q("25.95 mm")),
    Sketcher.Constraint("DistanceY", 32, 2, -1, 1, Q("0.55 mm")),
    Sketcher.Constraint("DistanceY", 40, 2, -1, 1, Q("27.05 mm")),
])
pocket3 = doc.addObject("PartDesign::Pocket", "Pocket002")
body.addObject(pocket3)
pocket3.Profile = sketch5
pocket3.Type = "ThroughAll"
pocket3.Reversed = True

doc.recompute()
